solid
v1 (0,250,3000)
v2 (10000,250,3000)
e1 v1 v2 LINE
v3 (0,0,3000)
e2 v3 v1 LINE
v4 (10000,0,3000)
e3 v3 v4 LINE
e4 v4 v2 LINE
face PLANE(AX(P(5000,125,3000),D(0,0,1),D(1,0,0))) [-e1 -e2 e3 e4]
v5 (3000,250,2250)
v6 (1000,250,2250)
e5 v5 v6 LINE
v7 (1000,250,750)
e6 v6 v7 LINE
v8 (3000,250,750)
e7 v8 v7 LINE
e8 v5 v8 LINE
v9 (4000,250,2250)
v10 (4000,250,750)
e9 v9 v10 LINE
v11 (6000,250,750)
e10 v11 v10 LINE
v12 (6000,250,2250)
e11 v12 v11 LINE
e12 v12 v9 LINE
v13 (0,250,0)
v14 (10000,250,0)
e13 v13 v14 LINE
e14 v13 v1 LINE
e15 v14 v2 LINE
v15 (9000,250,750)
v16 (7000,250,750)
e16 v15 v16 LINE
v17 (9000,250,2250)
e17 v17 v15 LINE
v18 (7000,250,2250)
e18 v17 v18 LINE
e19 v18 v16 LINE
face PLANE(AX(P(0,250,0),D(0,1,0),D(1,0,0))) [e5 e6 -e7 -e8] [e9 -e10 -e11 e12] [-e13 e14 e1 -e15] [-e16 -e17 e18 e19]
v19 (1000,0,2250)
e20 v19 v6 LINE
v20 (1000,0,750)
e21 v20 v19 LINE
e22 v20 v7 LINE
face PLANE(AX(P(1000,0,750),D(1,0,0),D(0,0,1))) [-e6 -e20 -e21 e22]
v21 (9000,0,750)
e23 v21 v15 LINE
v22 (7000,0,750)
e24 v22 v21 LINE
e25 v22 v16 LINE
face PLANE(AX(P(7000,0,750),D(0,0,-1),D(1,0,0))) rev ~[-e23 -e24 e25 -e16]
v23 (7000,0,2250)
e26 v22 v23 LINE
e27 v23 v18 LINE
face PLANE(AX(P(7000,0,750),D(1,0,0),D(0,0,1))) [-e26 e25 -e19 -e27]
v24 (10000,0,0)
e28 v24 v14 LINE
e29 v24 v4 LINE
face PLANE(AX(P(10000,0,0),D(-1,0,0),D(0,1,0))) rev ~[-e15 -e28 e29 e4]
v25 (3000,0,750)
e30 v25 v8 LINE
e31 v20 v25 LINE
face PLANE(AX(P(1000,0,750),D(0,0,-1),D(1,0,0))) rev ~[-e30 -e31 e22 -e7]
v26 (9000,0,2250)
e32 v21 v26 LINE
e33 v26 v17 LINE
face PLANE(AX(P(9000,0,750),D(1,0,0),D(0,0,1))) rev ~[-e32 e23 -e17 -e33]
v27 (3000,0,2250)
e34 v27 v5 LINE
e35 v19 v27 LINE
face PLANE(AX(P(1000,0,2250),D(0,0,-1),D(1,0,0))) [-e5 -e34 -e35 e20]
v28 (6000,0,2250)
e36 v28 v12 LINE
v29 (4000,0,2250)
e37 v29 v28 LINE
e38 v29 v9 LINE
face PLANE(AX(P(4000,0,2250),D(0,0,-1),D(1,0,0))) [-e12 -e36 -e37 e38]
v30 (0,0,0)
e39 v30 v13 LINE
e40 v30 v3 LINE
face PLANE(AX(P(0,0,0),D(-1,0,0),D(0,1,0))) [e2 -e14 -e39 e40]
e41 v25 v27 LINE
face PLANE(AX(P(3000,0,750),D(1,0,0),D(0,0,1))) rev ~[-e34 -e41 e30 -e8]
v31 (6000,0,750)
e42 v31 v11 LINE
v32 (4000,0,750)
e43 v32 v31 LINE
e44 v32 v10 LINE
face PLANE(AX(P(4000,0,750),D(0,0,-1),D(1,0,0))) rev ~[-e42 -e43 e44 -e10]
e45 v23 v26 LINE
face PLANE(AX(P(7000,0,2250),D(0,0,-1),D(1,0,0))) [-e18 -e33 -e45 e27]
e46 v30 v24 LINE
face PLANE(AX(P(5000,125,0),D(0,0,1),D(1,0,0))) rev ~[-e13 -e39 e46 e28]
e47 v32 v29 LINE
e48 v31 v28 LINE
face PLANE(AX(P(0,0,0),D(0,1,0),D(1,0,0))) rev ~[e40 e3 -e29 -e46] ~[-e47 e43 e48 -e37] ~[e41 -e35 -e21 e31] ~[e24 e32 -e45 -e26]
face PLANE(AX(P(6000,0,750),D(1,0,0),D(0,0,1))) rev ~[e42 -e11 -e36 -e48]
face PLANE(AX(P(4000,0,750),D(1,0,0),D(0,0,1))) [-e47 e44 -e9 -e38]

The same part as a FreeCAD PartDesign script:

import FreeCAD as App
import Part
import Sketcher
from FreeCAD import Vector


def add_polygon(sketch, points):
    """Adds a closed chain of lines whose ends are joined by coincident constraints."""
    first, n = sketch.GeometryCount, len(points)
    for a, b in zip(points, points[1:] + points[:1]):
        sketch.addGeometry(Part.LineSegment(App.Vector(*a, 0), App.Vector(*b, 0)), False)
    for i in range(n):
        sketch.addConstraint(Sketcher.Constraint("Coincident", first + i, 2, first + (i + 1) % n, 1))

doc = App.newDocument("Part")
body = doc.addObject("PartDesign::Body", "Body")
body.AllowCompound = True

# Sketch on XZ plane
sketch1 = body.newObject("Sketcher::SketchObject", "Sketch")
sketch1.AttachmentSupport = (doc.getObject("XZ_Plane"), [""])
sketch1.MapMode = "FlatFace"
add_polygon(sketch1, [(1000, 2250), (1000, 750), (3000, 750), (3000, 2250)])  # lines 0-3
add_polygon(sketch1, [(4000, 2250), (4000, 750), (6000, 750), (6000, 2250)])  # lines 4-7
add_polygon(sketch1, [(7000, 2250), (7000, 750), (9000, 750), (9000, 2250)])  # lines 8-11
sketch1.addConstraint([
    Sketcher.Constraint("Vertical", 0),
    Sketcher.Constraint("Horizontal", 1),
    Sketcher.Constraint("Vertical", 2),
    Sketcher.Constraint("Horizontal", 3),
    Sketcher.Constraint("Vertical", 4),
    Sketcher.Constraint("Horizontal", 5),
    Sketcher.Constraint("Vertical", 6),
    Sketcher.Constraint("Horizontal", 7),
    Sketcher.Constraint("Vertical", 8),
    Sketcher.Constraint("Horizontal", 9),
    Sketcher.Constraint("Vertical", 10),
    Sketcher.Constraint("Horizontal", 11),
    Sketcher.Constraint("Horizontal", 1, 2, 4, 2),
    Sketcher.Constraint("Horizontal", 3, 2, 6, 2),
    Sketcher.Constraint("Horizontal", 5, 2, 8, 2),
    Sketcher.Constraint("Horizontal", 7, 2, 10, 2),
    Sketcher.Constraint("Equal", 3, 5),
    Sketcher.Constraint("Equal", 7, 9),
    Sketcher.Constraint("DistanceX", 1, 1, 1, 2, 2000.0),
    Sketcher.Constraint("DistanceY", 0, 2, 0, 1, 1500.0),
    Sketcher.Constraint("DistanceX", -1, 1, 0, 2, 1000.0),
    Sketcher.Constraint("DistanceY", -1, 1, 0, 2, 750.0),
    Sketcher.Constraint("DistanceX", -1, 1, 4, 2, 4000.0),
    Sketcher.Constraint("DistanceX", -1, 1, 8, 2, 7000.0),
])
pad1 = body.newObject("PartDesign::Pad", "Pad")
pad1.Profile = sketch1
pad1.Length = 350
pad1.Reversed = True
body2 = doc.addObject("PartDesign::Body", "Body001")

# Sketch on XY plane
sketch2 = body2.newObject("Sketcher::SketchObject", "Sketch001")
sketch2.AttachmentSupport = (doc.getObject("XY_Plane001"), [""])
sketch2.MapMode = "FlatFace"
add_polygon(sketch2, [(0, 250), (0, 0), (10000, 0), (10000, 250)])  # lines 0-3
sketch2.addConstraint([
    Sketcher.Constraint("Vertical", 0),
    Sketcher.Constraint("Horizontal", 1),
    Sketcher.Constraint("Vertical", 2),
    Sketcher.Constraint("Horizontal", 3),
    Sketcher.Constraint("Coincident", 0, 2, -1, 1),
    Sketcher.Constraint("DistanceX", 1, 1, 1, 2, 10000.0),
    Sketcher.Constraint("DistanceY", 0, 2, 0, 1, 250.0),
])
pad2 = body2.newObject("PartDesign::Pad", "Pad001")
pad2.Profile = sketch2
pad2.Length = 3000
doc.recompute()

boolean = body2.newObject("PartDesign::Boolean", "Boolean")
boolean.Type = "Cut"
boolean.addObjects([body])

doc.recompute()
